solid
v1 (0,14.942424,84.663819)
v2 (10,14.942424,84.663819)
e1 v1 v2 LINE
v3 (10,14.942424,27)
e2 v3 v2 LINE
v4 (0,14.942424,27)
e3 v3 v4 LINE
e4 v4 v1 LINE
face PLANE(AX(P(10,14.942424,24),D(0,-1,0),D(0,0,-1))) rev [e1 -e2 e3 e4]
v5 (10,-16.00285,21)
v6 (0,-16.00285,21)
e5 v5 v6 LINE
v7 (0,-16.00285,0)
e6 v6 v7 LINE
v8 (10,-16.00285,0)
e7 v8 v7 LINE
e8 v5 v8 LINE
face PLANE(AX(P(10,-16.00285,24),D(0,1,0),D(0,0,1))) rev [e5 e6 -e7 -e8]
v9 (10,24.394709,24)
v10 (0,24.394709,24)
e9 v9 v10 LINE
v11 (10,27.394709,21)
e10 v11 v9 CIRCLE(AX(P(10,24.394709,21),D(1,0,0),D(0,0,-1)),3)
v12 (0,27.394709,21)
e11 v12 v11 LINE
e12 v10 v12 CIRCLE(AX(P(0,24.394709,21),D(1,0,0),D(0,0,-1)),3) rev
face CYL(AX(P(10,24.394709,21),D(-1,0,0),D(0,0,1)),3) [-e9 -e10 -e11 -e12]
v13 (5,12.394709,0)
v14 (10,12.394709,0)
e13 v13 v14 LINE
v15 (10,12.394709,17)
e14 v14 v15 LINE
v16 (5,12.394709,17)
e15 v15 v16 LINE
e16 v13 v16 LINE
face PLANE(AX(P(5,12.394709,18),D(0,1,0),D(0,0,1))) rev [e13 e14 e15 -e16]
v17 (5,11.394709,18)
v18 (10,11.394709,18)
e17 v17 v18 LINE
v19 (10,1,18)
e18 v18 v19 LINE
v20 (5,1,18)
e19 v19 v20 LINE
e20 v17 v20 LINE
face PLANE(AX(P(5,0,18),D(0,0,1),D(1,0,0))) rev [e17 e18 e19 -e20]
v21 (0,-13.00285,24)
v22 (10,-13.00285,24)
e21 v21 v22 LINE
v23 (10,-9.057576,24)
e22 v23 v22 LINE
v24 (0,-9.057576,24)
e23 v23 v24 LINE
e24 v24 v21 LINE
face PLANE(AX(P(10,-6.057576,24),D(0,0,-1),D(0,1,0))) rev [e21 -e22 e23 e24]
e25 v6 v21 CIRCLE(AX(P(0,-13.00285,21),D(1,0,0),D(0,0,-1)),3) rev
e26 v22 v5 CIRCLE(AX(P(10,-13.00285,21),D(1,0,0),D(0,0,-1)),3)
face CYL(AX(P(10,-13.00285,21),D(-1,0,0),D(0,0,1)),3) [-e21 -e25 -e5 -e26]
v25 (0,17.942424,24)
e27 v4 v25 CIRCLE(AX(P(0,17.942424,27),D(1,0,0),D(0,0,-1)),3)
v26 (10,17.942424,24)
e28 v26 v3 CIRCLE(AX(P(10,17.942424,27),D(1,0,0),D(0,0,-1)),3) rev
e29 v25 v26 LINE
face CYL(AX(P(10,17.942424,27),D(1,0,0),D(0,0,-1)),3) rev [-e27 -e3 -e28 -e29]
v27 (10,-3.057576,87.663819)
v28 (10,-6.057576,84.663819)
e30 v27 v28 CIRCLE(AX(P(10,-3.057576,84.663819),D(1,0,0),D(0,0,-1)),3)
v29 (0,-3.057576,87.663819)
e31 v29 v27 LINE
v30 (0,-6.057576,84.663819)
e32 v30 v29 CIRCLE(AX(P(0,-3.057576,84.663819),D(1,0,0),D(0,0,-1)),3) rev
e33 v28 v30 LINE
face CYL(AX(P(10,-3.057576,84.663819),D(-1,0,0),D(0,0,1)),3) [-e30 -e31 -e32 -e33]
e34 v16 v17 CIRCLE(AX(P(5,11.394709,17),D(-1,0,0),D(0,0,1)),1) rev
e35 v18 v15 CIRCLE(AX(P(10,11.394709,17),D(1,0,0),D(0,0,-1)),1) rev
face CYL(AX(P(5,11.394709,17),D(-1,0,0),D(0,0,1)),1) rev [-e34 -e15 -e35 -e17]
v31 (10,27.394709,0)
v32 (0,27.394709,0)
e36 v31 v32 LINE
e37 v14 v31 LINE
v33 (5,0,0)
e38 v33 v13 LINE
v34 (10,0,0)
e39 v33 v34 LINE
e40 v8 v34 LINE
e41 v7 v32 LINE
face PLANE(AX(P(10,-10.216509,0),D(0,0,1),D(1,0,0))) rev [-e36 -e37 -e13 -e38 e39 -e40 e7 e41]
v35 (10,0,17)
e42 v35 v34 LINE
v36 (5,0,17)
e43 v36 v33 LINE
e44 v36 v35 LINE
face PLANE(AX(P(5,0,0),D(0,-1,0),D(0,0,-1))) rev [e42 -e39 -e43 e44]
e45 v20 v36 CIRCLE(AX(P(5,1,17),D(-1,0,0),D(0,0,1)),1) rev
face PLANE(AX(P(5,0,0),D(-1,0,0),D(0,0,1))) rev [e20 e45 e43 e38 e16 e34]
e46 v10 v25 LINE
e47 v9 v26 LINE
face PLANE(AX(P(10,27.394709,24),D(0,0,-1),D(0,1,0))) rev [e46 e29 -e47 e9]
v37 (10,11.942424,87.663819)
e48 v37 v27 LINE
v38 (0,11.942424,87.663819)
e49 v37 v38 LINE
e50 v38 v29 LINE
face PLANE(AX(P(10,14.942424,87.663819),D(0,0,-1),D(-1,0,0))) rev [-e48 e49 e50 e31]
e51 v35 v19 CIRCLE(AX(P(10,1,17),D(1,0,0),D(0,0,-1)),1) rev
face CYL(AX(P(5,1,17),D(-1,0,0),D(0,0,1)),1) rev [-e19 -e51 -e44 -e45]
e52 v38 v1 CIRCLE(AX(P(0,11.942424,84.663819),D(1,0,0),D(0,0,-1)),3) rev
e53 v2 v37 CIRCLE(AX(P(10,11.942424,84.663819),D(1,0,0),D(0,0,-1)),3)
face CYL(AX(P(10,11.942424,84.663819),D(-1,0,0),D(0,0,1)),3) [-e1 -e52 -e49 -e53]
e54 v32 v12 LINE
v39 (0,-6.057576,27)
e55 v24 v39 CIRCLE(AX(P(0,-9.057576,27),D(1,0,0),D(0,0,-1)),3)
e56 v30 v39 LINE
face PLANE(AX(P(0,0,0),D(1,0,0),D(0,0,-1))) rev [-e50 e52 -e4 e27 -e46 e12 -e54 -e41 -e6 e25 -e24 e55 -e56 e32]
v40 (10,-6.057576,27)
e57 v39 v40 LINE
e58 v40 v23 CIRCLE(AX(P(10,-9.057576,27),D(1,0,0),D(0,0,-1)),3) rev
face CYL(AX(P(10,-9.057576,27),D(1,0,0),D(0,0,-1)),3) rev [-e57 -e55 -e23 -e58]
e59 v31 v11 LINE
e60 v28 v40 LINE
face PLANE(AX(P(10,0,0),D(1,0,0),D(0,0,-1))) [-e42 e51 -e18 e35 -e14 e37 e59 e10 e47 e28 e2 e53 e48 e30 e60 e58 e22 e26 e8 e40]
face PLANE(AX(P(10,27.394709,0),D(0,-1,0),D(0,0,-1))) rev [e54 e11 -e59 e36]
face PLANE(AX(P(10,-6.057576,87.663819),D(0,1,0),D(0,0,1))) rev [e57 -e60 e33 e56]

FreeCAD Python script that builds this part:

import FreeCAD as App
import Part
import Sketcher

V = App.Vector
Q = App.Units.Quantity


def edges_at(feature, points):
    """Names of the edges that pass closest to the given points."""
    edges = feature.Shape.Edges
    near = lambda p: min(range(len(edges)), key=lambda i: edges[i].distToShape(Part.Vertex(*p))[0])
    return sorted({f"Edge{near(p) + 1}" for p in points})

doc = App.newDocument("Part")
params = doc.addObject("Spreadsheet::Sheet", "Params")
for row, (alias, value) in enumerate([
    ("sketch1_width", "21 mm"),
    ("sketch1_height", "24 mm"),
    ("pad1_length", "10 mm"),
    ("sketch2_height", "18 mm"),
    ("pocket1_length", "5 mm"),
    ("fillet_radius", "3 mm"),
    ("fillet2_radius", "3 mm"),
    ("fillet3_radius", "1 mm"),
], start=1):
    params.set(f"A{row}", alias)
    params.set(f"B{row}", "=" + value)
    params.setAlias(f"B{row}", alias)

body = doc.addObject("PartDesign::Body", "Body")

sketch1 = body.newObject("Sketcher::SketchObject", "Sketch")
sketch1.AttachmentSupport = (doc.getObject("YZ_Plane"), [""])
sketch1.MapMode = "FlatFace"
sketch1.addGeometry([
    Part.LineSegment(V(27.394709, 0, 0), V(27.394709, 24, 0)),
    Part.LineSegment(V(27.394709, 24, 0), V(14.942424, 24, 0)),
    Part.LineSegment(V(14.942424, 24, 0), V(14.942424, 87.663819, 0)),
    Part.LineSegment(V(14.942424, 87.663819, 0), V(-6.057576, 87.663819, 0)),
    Part.LineSegment(V(-6.057576, 87.663819, 0), V(-6.057576, 24, 0)),
    Part.LineSegment(V(-6.057576, 24, 0), V(-16.00285, 24, 0)),
    Part.LineSegment(V(-16.00285, 24, 0), V(-16.00285, 0, 0)),
    Part.LineSegment(V(-16.00285, 0, 0), V(27.394709, 0, 0)),
], False)
sketch1.addConstraint([
    Sketcher.Constraint("Coincident", 0, 2, 1, 1),
    Sketcher.Constraint("Coincident", 1, 2, 2, 1),
    Sketcher.Constraint("Coincident", 2, 2, 3, 1),
    Sketcher.Constraint("Coincident", 3, 2, 4, 1),
    Sketcher.Constraint("Coincident", 4, 2, 5, 1),
    Sketcher.Constraint("Coincident", 5, 2, 6, 1),
    Sketcher.Constraint("Coincident", 6, 2, 7, 1),
    Sketcher.Constraint("Coincident", 7, 2, 0, 1),
    Sketcher.Constraint("Vertical", 0),
    Sketcher.Constraint("Horizontal", 1),
    Sketcher.Constraint("Vertical", 2),
    Sketcher.Constraint("Horizontal", 3),
    Sketcher.Constraint("Vertical", 4),
    Sketcher.Constraint("Horizontal", 5),
    Sketcher.Constraint("Vertical", 6),
    Sketcher.Constraint("Horizontal", 7),
    Sketcher.Constraint("PointOnObject", 6, 2, -1),
    Sketcher.Constraint("Horizontal", 1, 2, 4, 2),
    Sketcher.Constraint("DistanceX", 3, 2, 3, 1, Q("21 mm")),
    Sketcher.Constraint("DistanceY", 0, 1, 0, 2, Q("24 mm")),
    Sketcher.Constraint("DistanceX", 7, 1, 7, 2, Q("43.397559 mm")),
    Sketcher.Constraint("DistanceY", 2, 1, 2, 2, Q("63.663819 mm")),
    Sketcher.Constraint("DistanceX", 1, 2, 1, 1, Q("12.452285 mm")),
    Sketcher.Constraint("DistanceX", -1, 1, 0, 2, Q("27.394709 mm")),
])
sketch1.setExpression("Constraints[18]", "Params.sketch1_width")
sketch1.setExpression("Constraints[19]", "Params.sketch1_height")
pad1 = body.newObject("PartDesign::Pad", "Pad")
pad1.Profile = sketch1
pad1.setExpression("Length", "Params.pad1_length")

sketch2 = body.newObject("Sketcher::SketchObject", "Sketch001")
sketch2.AttachmentSupport = (doc.getObject("YZ_Plane"), [""])
sketch2.MapMode = "FlatFace"
sketch2.AttachmentOffset = App.Placement(V(0, 0, 10), App.Rotation())
sketch2.addGeometry([
    Part.LineSegment(V(12.394709, 18, 0), V(0, 18, 0)),
    Part.LineSegment(V(0, 18, 0), V(0, 0, 0)),
    Part.LineSegment(V(0, 0, 0), V(12.394709, 0, 0)),
    Part.LineSegment(V(12.394709, 0, 0), V(12.394709, 18, 0)),
], False)
sketch2.addConstraint([
    Sketcher.Constraint("Coincident", 0, 2, 1, 1),
    Sketcher.Constraint("Coincident", 1, 2, 2, 1),
    Sketcher.Constraint("Coincident", 2, 2, 3, 1),
    Sketcher.Constraint("Coincident", 3, 2, 0, 1),
    Sketcher.Constraint("Horizontal", 0),
    Sketcher.Constraint("Vertical", 1),
    Sketcher.Constraint("Horizontal", 2),
    Sketcher.Constraint("Vertical", 3),
    Sketcher.Constraint("Coincident", 1, 2, -1, 1),
    Sketcher.Constraint("DistanceY", 1, 2, 1, 1, Q("18 mm")),
    Sketcher.Constraint("DistanceX", 0, 2, 0, 1, Q("12.394709 mm")),
])
sketch2.setExpression("Constraints[9]", "Params.sketch2_height")
pocket1 = body.newObject("PartDesign::Pocket", "Pocket")
pocket1.Profile = sketch2
pocket1.setExpression("Length", "Params.pocket1_length")
doc.recompute()

fillet = body.newObject("PartDesign::Fillet", "Fillet")
fillet.Base = (pocket1, edges_at(pocket1, [(5, -6.058, 24), (5, 14.942, 24)]))
fillet.setExpression("Radius", "Params.fillet_radius")
doc.recompute()

fillet2 = body.newObject("PartDesign::Fillet", "Fillet001")
fillet2.Base = (fillet, edges_at(fillet, [
    (5, -16.003, 24),
    (5, -6.058, 87.664),
    (5, 14.942, 87.664),
    (5, 27.395, 24),
]))
fillet2.setExpression("Radius", "Params.fillet2_radius")
doc.recompute()

fillet3 = body.newObject("PartDesign::Fillet", "Fillet002")
fillet3.Base = (fillet2, edges_at(fillet2, [(7.5, 0, 18), (7.5, 12.395, 18)]))
fillet3.setExpression("Radius", "Params.fillet3_radius")

doc.recompute()
